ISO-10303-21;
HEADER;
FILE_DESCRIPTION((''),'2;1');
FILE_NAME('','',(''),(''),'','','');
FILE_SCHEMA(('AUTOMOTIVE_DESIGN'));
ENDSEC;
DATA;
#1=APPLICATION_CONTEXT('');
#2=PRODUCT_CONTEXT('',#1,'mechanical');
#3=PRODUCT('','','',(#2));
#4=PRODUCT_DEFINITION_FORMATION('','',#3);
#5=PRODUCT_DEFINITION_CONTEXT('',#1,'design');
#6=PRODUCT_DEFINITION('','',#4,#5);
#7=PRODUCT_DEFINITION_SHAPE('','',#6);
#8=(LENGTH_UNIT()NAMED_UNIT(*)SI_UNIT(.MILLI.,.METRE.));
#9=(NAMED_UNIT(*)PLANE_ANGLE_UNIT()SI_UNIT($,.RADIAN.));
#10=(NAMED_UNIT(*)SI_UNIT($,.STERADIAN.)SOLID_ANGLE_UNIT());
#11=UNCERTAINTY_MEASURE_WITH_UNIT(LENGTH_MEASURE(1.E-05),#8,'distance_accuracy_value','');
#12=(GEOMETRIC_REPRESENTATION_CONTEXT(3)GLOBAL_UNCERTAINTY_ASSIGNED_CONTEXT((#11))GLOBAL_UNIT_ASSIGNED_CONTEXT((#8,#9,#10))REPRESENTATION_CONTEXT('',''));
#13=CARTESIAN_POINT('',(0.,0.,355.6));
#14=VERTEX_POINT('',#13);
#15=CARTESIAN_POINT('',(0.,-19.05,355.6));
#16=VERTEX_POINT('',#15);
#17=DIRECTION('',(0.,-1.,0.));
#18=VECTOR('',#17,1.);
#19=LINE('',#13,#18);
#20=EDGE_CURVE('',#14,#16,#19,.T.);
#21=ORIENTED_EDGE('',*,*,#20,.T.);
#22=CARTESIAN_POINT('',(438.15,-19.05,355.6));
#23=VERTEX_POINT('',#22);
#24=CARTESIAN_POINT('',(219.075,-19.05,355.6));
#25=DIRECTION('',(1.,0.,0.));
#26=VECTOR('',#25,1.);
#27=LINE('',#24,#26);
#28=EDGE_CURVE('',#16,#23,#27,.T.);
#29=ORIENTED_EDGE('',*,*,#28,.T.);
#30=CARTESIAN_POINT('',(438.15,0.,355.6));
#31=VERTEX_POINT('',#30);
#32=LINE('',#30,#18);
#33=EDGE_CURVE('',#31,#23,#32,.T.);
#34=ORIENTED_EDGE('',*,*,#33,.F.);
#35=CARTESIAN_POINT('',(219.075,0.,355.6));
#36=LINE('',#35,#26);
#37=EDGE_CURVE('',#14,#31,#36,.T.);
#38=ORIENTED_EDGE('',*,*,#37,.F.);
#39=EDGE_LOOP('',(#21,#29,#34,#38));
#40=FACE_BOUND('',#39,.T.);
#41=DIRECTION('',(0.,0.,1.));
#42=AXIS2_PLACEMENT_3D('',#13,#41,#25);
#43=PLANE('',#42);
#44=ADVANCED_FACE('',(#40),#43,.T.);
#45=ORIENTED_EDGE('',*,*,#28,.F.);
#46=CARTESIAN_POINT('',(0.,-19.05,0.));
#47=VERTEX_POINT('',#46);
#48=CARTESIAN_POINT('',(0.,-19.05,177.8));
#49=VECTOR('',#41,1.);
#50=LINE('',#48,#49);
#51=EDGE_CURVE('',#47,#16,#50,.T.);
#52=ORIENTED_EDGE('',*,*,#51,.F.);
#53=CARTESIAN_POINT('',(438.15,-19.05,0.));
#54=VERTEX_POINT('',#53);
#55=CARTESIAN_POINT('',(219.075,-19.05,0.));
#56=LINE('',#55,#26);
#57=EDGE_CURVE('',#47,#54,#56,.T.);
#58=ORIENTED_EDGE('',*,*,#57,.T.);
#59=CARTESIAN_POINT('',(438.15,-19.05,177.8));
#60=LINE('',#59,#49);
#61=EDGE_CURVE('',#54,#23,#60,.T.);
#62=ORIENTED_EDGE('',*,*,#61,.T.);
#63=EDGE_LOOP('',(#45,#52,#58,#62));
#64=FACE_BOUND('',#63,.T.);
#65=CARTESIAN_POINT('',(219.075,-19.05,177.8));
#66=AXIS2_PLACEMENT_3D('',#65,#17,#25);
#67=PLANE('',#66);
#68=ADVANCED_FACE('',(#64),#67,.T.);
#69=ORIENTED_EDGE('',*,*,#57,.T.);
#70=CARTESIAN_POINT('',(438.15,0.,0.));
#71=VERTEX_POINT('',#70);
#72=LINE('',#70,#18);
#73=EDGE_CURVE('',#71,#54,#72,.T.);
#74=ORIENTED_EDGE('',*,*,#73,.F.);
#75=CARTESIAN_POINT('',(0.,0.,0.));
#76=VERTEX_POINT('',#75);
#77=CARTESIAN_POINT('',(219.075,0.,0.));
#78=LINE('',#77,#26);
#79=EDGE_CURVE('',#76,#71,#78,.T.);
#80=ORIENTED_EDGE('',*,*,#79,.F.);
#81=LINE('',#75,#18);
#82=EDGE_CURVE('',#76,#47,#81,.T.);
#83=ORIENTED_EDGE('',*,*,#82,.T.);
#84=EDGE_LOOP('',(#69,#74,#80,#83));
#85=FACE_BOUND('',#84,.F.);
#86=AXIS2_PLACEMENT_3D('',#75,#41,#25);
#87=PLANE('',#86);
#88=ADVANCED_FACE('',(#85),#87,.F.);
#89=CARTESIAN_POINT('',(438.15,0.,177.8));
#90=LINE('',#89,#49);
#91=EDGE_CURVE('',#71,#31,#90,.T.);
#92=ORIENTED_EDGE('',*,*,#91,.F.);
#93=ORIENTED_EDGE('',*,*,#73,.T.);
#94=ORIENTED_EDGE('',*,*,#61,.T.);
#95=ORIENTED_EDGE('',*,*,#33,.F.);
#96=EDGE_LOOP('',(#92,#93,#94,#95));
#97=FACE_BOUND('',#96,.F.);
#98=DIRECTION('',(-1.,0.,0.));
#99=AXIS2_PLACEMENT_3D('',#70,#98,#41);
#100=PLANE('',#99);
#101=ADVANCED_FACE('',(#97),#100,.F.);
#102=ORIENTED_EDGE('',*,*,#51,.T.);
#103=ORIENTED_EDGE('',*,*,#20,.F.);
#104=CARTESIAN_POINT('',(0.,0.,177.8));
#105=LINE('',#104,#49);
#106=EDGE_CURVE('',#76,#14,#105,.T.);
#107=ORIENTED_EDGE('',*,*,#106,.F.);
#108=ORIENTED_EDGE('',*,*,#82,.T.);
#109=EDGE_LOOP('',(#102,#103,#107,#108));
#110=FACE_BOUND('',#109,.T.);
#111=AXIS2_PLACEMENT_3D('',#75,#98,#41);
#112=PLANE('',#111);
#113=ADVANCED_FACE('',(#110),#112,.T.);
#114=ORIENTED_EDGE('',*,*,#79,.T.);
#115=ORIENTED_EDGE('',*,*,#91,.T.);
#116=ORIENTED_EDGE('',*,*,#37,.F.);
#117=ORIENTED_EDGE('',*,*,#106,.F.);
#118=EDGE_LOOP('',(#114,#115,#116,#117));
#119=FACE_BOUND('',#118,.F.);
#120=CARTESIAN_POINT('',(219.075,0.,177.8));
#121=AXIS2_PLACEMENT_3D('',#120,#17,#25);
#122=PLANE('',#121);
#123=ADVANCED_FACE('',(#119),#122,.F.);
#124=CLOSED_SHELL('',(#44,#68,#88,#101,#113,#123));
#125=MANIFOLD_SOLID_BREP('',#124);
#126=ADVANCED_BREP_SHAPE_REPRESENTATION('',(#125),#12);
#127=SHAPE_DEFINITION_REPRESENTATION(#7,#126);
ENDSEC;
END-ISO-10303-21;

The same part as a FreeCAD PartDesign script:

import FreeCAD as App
import Part
import Sketcher
from FreeCAD import Vector
Q = App.Units.Quantity


def add_polygon(sketch, points):
    """Adds a closed chain of lines whose ends are joined by coincident constraints."""
    first, n = sketch.GeometryCount, len(points)
    for a, b in zip(points, points[1:] + points[:1]):
        sketch.addGeometry(Part.LineSegment(App.Vector(*a, 0), App.Vector(*b, 0)), False)
    for i in range(n):
        sketch.addConstraint(Sketcher.Constraint("Coincident", first + i, 2, first + (i + 1) % n, 1))

doc = App.newDocument("Part")
params = doc.addObject("Spreadsheet::Sheet", "Params")
for row, (alias, value) in enumerate([
    ("sketch1_height", "14 in"),
    ("sketch1_width", "17.25 in"),
    ("pad1_length", "0.75 in"),
    ("pad2_length", "0.75 in"),
], start=1):
    params.set(f"A{row}", alias)
    params.set(f"B{row}", "=" + value)
    params.setAlias(f"B{row}", alias)

body = doc.addObject("PartDesign::Body", "Body")

# Sketch on XZ plane
sketch1 = body.newObject("Sketcher::SketchObject", "Sketch")
sketch1.AttachmentSupport = (doc.getObject("XZ_Plane"), [""])
sketch1.MapMode = "FlatFace"
add_polygon(sketch1, [(0, 355.6), (0, 0), (438.15, 0), (438.15, 355.6)])  # lines 0-3
sketch1.addConstraint([
    Sketcher.Constraint("Vertical", 0),
    Sketcher.Constraint("Horizontal", 1),
    Sketcher.Constraint("Vertical", 2),
    Sketcher.Constraint("Horizontal", 3),
    Sketcher.Constraint("Coincident", 0, 2, -1, 1),
    Sketcher.Constraint("DistanceY", 0, 2, 0, 1, Q("14 in")),
    Sketcher.Constraint("DistanceX", 1, 1, 1, 2, Q("17.25 in")),
])
sketch1.setExpression("Constraints[9]", "Params.sketch1_height")
sketch1.setExpression("Constraints[10]", "Params.sketch1_width")
pad1 = body.newObject("PartDesign::Pad", "Pad")
pad1.Profile = sketch1
pad1.setExpression("Length", "Params.pad1_length")
body2 = doc.addObject("PartDesign::Body", "Body001")

# Sketch on XZ plane
sketch2 = body2.newObject("Sketcher::SketchObject", "Sketch001")
sketch2.AttachmentSupport = (doc.getObject("XZ_Plane001"), [""])
sketch2.MapMode = "FlatFace"
add_polygon(sketch2, [(211.614254, -37.982047), (211.614254, -115.302637), (219.753265, -115.302637), (219.753265, -37.982047)])  # lines 0-3
sketch2.addConstraint([
    Sketcher.Constraint("Vertical", 0),
    Sketcher.Constraint("Horizontal", 1),
    Sketcher.Constraint("Vertical", 2),
    Sketcher.Constraint("Horizontal", 3),
    Sketcher.Constraint("DistanceX", 1, 1, 1, 2, 8.139011),
    Sketcher.Constraint("DistanceY", 0, 2, 0, 1, 77.32059),
    Sketcher.Constraint("DistanceX", -1, 1, 0, 2, 211.614254),
    Sketcher.Constraint("DistanceY", 0, 2, -1, 1, 115.302637),
])
pad2 = body2.newObject("PartDesign::Pad", "Pad001")
pad2.Profile = sketch2
pad2.setExpression("Length", "Params.pad2_length")
body2.Visibility = False

doc.recompute()
